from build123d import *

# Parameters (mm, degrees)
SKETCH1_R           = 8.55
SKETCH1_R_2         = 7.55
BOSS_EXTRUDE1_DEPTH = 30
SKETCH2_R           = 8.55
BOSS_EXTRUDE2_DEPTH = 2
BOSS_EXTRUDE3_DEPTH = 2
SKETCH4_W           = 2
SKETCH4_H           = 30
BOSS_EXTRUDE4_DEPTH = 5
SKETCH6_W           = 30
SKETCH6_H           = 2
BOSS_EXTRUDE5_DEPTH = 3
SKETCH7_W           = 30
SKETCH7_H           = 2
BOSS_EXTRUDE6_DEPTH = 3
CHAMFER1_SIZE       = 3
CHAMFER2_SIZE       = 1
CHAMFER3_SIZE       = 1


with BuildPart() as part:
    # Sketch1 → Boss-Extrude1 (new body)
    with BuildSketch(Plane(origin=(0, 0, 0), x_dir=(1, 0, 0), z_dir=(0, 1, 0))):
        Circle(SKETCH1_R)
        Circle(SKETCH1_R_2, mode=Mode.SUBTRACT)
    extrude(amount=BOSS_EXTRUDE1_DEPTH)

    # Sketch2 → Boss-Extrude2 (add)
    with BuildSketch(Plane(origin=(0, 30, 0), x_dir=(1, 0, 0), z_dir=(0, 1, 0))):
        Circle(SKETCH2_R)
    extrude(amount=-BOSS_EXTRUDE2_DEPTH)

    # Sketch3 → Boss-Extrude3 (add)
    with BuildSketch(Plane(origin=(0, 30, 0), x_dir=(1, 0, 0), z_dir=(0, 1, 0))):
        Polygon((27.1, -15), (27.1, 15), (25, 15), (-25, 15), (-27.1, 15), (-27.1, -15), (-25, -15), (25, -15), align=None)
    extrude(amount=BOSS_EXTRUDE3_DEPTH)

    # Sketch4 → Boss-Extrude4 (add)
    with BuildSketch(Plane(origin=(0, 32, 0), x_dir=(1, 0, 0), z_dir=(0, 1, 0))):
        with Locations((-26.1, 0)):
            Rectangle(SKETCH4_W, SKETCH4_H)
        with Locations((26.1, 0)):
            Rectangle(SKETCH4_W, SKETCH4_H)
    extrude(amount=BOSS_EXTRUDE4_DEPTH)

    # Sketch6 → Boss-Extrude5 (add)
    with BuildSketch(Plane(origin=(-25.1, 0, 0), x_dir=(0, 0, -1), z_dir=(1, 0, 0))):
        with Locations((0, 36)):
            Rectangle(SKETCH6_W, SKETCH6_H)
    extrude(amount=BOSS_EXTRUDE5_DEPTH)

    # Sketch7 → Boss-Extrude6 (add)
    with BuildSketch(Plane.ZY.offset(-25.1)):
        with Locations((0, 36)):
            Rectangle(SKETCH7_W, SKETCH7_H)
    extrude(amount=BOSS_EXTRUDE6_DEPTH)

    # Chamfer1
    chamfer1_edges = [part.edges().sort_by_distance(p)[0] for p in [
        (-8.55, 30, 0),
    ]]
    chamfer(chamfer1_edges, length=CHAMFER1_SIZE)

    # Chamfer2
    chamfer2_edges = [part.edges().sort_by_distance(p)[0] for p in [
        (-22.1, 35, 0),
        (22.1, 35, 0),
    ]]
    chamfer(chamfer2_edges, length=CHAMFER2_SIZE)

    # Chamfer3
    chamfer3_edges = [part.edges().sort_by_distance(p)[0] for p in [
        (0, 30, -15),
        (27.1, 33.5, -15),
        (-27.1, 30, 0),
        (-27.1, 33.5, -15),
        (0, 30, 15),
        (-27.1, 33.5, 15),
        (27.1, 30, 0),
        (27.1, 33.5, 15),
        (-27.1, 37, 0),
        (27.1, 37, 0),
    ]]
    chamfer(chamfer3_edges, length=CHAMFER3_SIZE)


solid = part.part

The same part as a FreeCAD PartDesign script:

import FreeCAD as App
import Part
import Sketcher


def edges_at(feature, points):
    """Names of the edges that pass closest to the given points."""
    edges = feature.Shape.Edges
    near = lambda p: min(range(len(edges)), key=lambda i: edges[i].distToShape(Part.Vertex(*p))[0])
    return sorted({f"Edge{near(p) + 1}" for p in points})

doc = App.newDocument("Part")
body = doc.addObject("PartDesign::Body", "Body")

# Sketch on XZ plane
sketch1 = body.newObject("Sketcher::SketchObject", "Sketch")
sketch1.AttachmentSupport = (doc.getObject("XZ_Plane"), [""])
sketch1.MapMode = "FlatFace"
sketch1.addGeometry([
    Part.Circle(App.Vector(0, 0, 0), App.Vector(0, 0, 1), 8.55),
    Part.Circle(App.Vector(0, 0, 0), App.Vector(0, 0, 1), 7.55),
], False)
sketch1.addConstraint([
    Sketcher.Constraint("Coincident", 0, 3, -1, 1),
    Sketcher.Constraint("Coincident", 1, 3, -1, 1),
    Sketcher.Constraint("Diameter", 0, 17.1),
    Sketcher.Constraint("Diameter", 1, 15.1),
])
pad1 = body.newObject("PartDesign::Pad", "Pad")
pad1.Profile = sketch1
pad1.Length = 30
pad1.Reversed = True

# Sketch on XZ plane
sketch2 = body.newObject("Sketcher::SketchObject", "Sketch001")
sketch2.AttachmentSupport = (doc.getObject("XZ_Plane"), [""])
sketch2.MapMode = "FlatFace"
sketch2.AttachmentOffset = App.Placement(App.Vector(0, 0, -30), App.Rotation())
sketch2.addGeometry(Part.Circle(App.Vector(0, 0, 0), App.Vector(0, 0, 1), 8.55), False)
sketch2.addConstraint([
    Sketcher.Constraint("Coincident", 0, 3, -1, 1),
    Sketcher.Constraint("Diameter", 0, 17.1),
])
pad2 = body.newObject("PartDesign::Pad", "Pad001")
pad2.Profile = sketch2
pad2.Length = 2

# Sketch on XZ plane
sketch3 = body.newObject("Sketcher::SketchObject", "Sketch002")
sketch3.AttachmentSupport = (doc.getObject("XZ_Plane"), [""])
sketch3.MapMode = "FlatFace"
sketch3.AttachmentOffset = App.Placement(App.Vector(0, 0, -30), App.Rotation())
sketch3.addGeometry([
    Part.LineSegment(App.Vector(27.1, 15, 0), App.Vector(27.1, -15, 0)),
    Part.LineSegment(App.Vector(27.1, -15, 0), App.Vector(-27.1, -15, 0)),
    Part.LineSegment(App.Vector(-27.1, -15, 0), App.Vector(-27.1, 15, 0)),
    Part.LineSegment(App.Vector(-27.1, 15, 0), App.Vector(27.1, 15, 0)),
], False)
sketch3.addConstraint([
    Sketcher.Constraint("Coincident", 0, 2, 1, 1),
    Sketcher.Constraint("Coincident", 1, 2, 2, 1),
    Sketcher.Constraint("Coincident", 2, 2, 3, 1),
    Sketcher.Constraint("Coincident", 3, 2, 0, 1),
    Sketcher.Constraint("Vertical", 0),
    Sketcher.Constraint("Horizontal", 1),
    Sketcher.Constraint("Vertical", 2),
    Sketcher.Constraint("Horizontal", 3),
    Sketcher.Constraint("Symmetric", 0, 2, 2, 2, -1, 1),
    Sketcher.Constraint("DistanceY", 0, 2, 0, 1, 30.0),
    Sketcher.Constraint("DistanceX", 1, 2, 1, 1, 54.2),
])
pad3 = body.newObject("PartDesign::Pad", "Pad002")
pad3.Profile = sketch3
pad3.Length = 2
pad3.Reversed = True

# Sketch on XZ plane
sketch4 = body.newObject("Sketcher::SketchObject", "Sketch003")
sketch4.AttachmentSupport = (doc.getObject("XZ_Plane"), [""])
sketch4.MapMode = "FlatFace"
sketch4.AttachmentOffset = App.Placement(App.Vector(0, 0, -32), App.Rotation())
sketch4.addGeometry([
    Part.LineSegment(App.Vector(-27.1, -15, 0), App.Vector(-27.1, 15, 0)),  # 0
    Part.LineSegment(App.Vector(-27.1, 15, 0), App.Vector(-25.1, 15, 0)),  # 1
    Part.LineSegment(App.Vector(-25.1, 15, 0), App.Vector(-25.1, -15, 0)),  # 2
    Part.LineSegment(App.Vector(-25.1, -15, 0), App.Vector(-27.1, -15, 0)),  # 3
    Part.LineSegment(App.Vector(25.1, -15, 0), App.Vector(25.1, 15, 0)),  # 4
    Part.LineSegment(App.Vector(25.1, 15, 0), App.Vector(27.1, 15, 0)),  # 5
    Part.LineSegment(App.Vector(27.1, 15, 0), App.Vector(27.1, -15, 0)),  # 6
    Part.LineSegment(App.Vector(27.1, -15, 0), App.Vector(25.1, -15, 0)),  # 7
], False)
sketch4.addConstraint([
    Sketcher.Constraint("Coincident", 0, 2, 1, 1),
    Sketcher.Constraint("Coincident", 1, 2, 2, 1),
    Sketcher.Constraint("Coincident", 2, 2, 3, 1),
    Sketcher.Constraint("Coincident", 3, 2, 0, 1),
    Sketcher.Constraint("Coincident", 4, 2, 5, 1),
    Sketcher.Constraint("Coincident", 5, 2, 6, 1),
    Sketcher.Constraint("Coincident", 6, 2, 7, 1),
    Sketcher.Constraint("Coincident", 7, 2, 4, 1),
    Sketcher.Constraint("Vertical", 0),
    Sketcher.Constraint("Horizontal", 1),
    Sketcher.Constraint("Vertical", 2),
    Sketcher.Constraint("Horizontal", 3),
    Sketcher.Constraint("Vertical", 4),
    Sketcher.Constraint("Horizontal", 5),
    Sketcher.Constraint("Vertical", 6),
    Sketcher.Constraint("Horizontal", 7),
    Sketcher.Constraint("Symmetric", 2, 2, 4, 2, -1, 1),
    Sketcher.Constraint("Symmetric", 0, 2, 6, 2, -1, 1),
    Sketcher.Constraint("Horizontal", 1, 2, 4, 2),
    Sketcher.Constraint("DistanceX", 1, 1, 1, 2, 2.0),
    Sketcher.Constraint("DistanceY", 0, 1, 0, 2, 30.0),
    Sketcher.Constraint("DistanceX", 0, 2, -1, 1, 27.1),
])
pad4 = body.newObject("PartDesign::Pad", "Pad003")
pad4.Profile = sketch4
pad4.Length = 5
pad4.Reversed = True

# Sketch on YZ plane
sketch5 = body.newObject("Sketcher::SketchObject", "Sketch004")
sketch5.AttachmentSupport = (doc.getObject("YZ_Plane"), [""])
sketch5.MapMode = "FlatFace"
sketch5.AttachmentOffset = App.Placement(App.Vector(0, 0, -25.1), App.Rotation())
sketch5.addGeometry([
    Part.LineSegment(App.Vector(37, 15, 0), App.Vector(35, 15, 0)),
    Part.LineSegment(App.Vector(35, 15, 0), App.Vector(35, -15, 0)),
    Part.LineSegment(App.Vector(35, -15, 0), App.Vector(37, -15, 0)),
    Part.LineSegment(App.Vector(37, -15, 0), App.Vector(37, 15, 0)),
], False)
sketch5.addConstraint([
    Sketcher.Constraint("Coincident", 0, 2, 1, 1),
    Sketcher.Constraint("Coincident", 1, 2, 2, 1),
    Sketcher.Constraint("Coincident", 2, 2, 3, 1),
    Sketcher.Constraint("Coincident", 3, 2, 0, 1),
    Sketcher.Constraint("Horizontal", 0),
    Sketcher.Constraint("Vertical", 1),
    Sketcher.Constraint("Horizontal", 2),
    Sketcher.Constraint("Vertical", 3),
    Sketcher.Constraint("DistanceX", 0, 2, 0, 1, 2.0),
    Sketcher.Constraint("DistanceY", 1, 2, 1, 1, 30.0),
    Sketcher.Constraint("DistanceX", -1, 1, 0, 2, 35.0),
    Sketcher.Constraint("DistanceY", -1, 1, 0, 2, 15.0),
])
pad5 = body.newObject("PartDesign::Pad", "Pad004")
pad5.Profile = sketch5
pad5.Length = 3

# Sketch on YZ plane
sketch6 = body.newObject("Sketcher::SketchObject", "Sketch005")
sketch6.AttachmentSupport = (doc.getObject("YZ_Plane"), [""])
sketch6.MapMode = "FlatFace"
sketch6.AttachmentOffset = App.Placement(App.Vector(0, 0, 25.1), App.Rotation())
sketch6.addGeometry([
    Part.LineSegment(App.Vector(37, -15, 0), App.Vector(35, -15, 0)),
    Part.LineSegment(App.Vector(35, -15, 0), App.Vector(35, 15, 0)),
    Part.LineSegment(App.Vector(35, 15, 0), App.Vector(37, 15, 0)),
    Part.LineSegment(App.Vector(37, 15, 0), App.Vector(37, -15, 0)),
], False)
sketch6.addConstraint([
    Sketcher.Constraint("Coincident", 0, 2, 1, 1),
    Sketcher.Constraint("Coincident", 1, 2, 2, 1),
    Sketcher.Constraint("Coincident", 2, 2, 3, 1),
    Sketcher.Constraint("Coincident", 3, 2, 0, 1),
    Sketcher.Constraint("Horizontal", 0),
    Sketcher.Constraint("Vertical", 1),
    Sketcher.Constraint("Horizontal", 2),
    Sketcher.Constraint("Vertical", 3),
    Sketcher.Constraint("DistanceX", 0, 2, 0, 1, 2.0),
    Sketcher.Constraint("DistanceY", 1, 1, 1, 2, 30.0),
    Sketcher.Constraint("DistanceX", -1, 1, 0, 2, 35.0),
    Sketcher.Constraint("DistanceY", 0, 2, -1, 1, 15.0),
])
pad6 = body.newObject("PartDesign::Pad", "Pad005")
pad6.Profile = sketch6
pad6.Length = 3
pad6.Reversed = True
doc.recompute()

chamfer = body.newObject("PartDesign::Chamfer", "Chamfer")
chamfer.Base = (pad6, edges_at(pad6, [(-8.55, 30, 0)]))
chamfer.Size = 3
doc.recompute()

chamfer2 = body.newObject("PartDesign::Chamfer", "Chamfer001")
chamfer2.Base = (chamfer, edges_at(chamfer, [(-22.1, 35, 0), (22.1, 35, 0)]))
chamfer2.Size = 1
doc.recompute()

chamfer3 = body.newObject("PartDesign::Chamfer", "Chamfer002")
chamfer3.Base = (chamfer2, edges_at(chamfer2, [
    (0, 30, -15),
    (27.1, 33.5, -15),
    (-27.1, 30, 0),
    (-27.1, 33.5, -15),
    (0, 30, 15),
    (-27.1, 33.5, 15),
    (27.1, 30, 0),
    (27.1, 33.5, 15),
    (-27.1, 37, 0),
    (27.1, 37, 0),
]))
chamfer3.Size = 1

doc.recompute()
